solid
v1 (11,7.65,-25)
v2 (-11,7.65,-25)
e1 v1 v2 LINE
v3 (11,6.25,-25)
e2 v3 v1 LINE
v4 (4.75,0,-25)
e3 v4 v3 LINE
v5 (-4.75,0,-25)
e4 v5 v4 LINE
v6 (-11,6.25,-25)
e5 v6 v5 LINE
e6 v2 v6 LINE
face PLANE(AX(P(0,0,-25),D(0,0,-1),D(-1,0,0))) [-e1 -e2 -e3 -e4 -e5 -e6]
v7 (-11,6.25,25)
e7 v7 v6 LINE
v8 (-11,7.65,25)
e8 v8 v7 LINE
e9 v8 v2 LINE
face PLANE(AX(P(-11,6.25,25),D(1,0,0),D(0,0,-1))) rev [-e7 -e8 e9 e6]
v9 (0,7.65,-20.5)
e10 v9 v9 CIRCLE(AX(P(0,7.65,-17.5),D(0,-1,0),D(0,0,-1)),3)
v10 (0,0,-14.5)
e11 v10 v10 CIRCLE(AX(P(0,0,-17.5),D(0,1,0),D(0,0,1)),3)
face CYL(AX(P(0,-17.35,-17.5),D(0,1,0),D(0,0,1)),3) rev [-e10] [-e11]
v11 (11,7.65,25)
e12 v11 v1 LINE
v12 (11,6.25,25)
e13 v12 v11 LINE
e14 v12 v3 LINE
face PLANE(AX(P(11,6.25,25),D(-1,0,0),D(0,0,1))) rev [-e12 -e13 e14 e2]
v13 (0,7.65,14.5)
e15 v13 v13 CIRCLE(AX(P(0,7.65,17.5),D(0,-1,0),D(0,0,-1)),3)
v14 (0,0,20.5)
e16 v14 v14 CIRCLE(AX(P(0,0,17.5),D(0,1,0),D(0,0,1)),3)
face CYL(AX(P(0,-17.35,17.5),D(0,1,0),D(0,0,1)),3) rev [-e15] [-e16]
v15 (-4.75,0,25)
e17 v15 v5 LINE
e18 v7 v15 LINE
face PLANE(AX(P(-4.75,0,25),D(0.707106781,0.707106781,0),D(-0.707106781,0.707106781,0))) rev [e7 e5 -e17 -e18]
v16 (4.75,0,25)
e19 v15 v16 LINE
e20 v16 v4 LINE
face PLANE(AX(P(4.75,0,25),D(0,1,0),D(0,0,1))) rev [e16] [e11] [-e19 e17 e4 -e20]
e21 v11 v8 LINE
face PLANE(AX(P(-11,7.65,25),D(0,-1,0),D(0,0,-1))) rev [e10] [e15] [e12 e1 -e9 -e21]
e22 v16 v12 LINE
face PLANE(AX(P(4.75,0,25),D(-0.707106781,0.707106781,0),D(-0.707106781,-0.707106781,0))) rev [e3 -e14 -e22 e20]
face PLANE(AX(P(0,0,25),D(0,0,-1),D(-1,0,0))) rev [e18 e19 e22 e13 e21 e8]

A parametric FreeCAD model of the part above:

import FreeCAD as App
import Part
import Sketcher


def add_polygon(sketch, points):
    """Adds a closed chain of lines whose ends are joined by coincident constraints."""
    first, n = sketch.GeometryCount, len(points)
    for a, b in zip(points, points[1:] + points[:1]):
        sketch.addGeometry(Part.LineSegment(App.Vector(*a, 0), App.Vector(*b, 0)), False)
    for i in range(n):
        sketch.addConstraint(Sketcher.Constraint("Coincident", first + i, 2, first + (i + 1) % n, 1))

doc = App.newDocument("Part")
params = doc.addObject("Spreadsheet::Sheet", "Params")
for row, (alias, value) in enumerate([
    ("sketch1_width", "22 mm"),
    ("sketch1_width2", "9.5 mm"),
    ("sketch1_height", "1.4 mm"),
    ("pad1_length", "50 mm"),
    ("sketch2_diameter", "6 mm"),
    ("pocket1_length", "50 mm"),
], start=1):
    params.set(f"A{row}", alias)
    params.set(f"B{row}", "=" + value)
    params.setAlias(f"B{row}", alias)

body = doc.addObject("PartDesign::Body", "Body")

sketch1 = body.newObject("Sketcher::SketchObject", "Sketch")
sketch1.AttachmentSupport = (doc.getObject("XY_Plane"), [""])
sketch1.MapMode = "FlatFace"
add_polygon(sketch1, [(-4.8, 0), (4.8, 0), (11, 6.2), (11, 7.7), (-11, 7.7), (-11, 6.2)])
sketch1.addConstraint([
    Sketcher.Constraint("Horizontal", 0),
    Sketcher.Constraint("Vertical", 2),
    Sketcher.Constraint("Horizontal", 3),
    Sketcher.Constraint("Vertical", 4),
    Sketcher.Constraint("Symmetric", 0, 2, 5, 2, -1, 1),
    Sketcher.Constraint("Symmetric", 1, 2, 4, 2, -2),
    Sketcher.Constraint("Perpendicular", 1, 5),
    Sketcher.Constraint("DistanceX", 3, 2, 3, 1, 22.0),
    Sketcher.Constraint("DistanceX", 0, 1, 0, 2, 9.5),
    Sketcher.Constraint("DistanceY", 2, 1, 2, 2, 1.4),
])
sketch1.setExpression("Constraints[13]", "Params.sketch1_width")
sketch1.setExpression("Constraints[14]", "Params.sketch1_width2")
sketch1.setExpression("Constraints[15]", "Params.sketch1_height")
pad1 = body.newObject("PartDesign::Pad", "Pad")
pad1.Profile = sketch1
pad1.setExpression("Length", "Params.pad1_length")
pad1.Midplane = True

sketch2 = body.newObject("Sketcher::SketchObject", "Sketch001")
sketch2.AttachmentSupport = (doc.getObject("XZ_Plane"), [""])
sketch2.MapMode = "FlatFace"
sketch2.AttachmentOffset = App.Placement(App.Vector(0, 0, -7.65), App.Rotation())
sketch2.addGeometry([
    Part.Circle(App.Vector(0, -17.5, 0), App.Vector(0, 0, 1), 3),
    Part.Circle(App.Vector(0, 17.5, 0), App.Vector(0, 0, 1), 3),
], False)
sketch2.addConstraint([
    Sketcher.Constraint("Equal", 0, 1),
    Sketcher.Constraint("Symmetric", 0, 3, 1, 3, -1, 1),
    Sketcher.Constraint("PointOnObject", 0, 3, -2),
    Sketcher.Constraint("Diameter", 0, 6.0),
    Sketcher.Constraint("DistanceY", 0, 3, 1, 3, 35.0),
])
sketch2.setExpression("Constraints[3]", "Params.sketch2_diameter")
pocket1 = body.newObject("PartDesign::Pocket", "Pocket")
pocket1.Profile = sketch2
pocket1.setExpression("Length", "Params.pocket1_length")
pocket1.Midplane = True

doc.recompute()
